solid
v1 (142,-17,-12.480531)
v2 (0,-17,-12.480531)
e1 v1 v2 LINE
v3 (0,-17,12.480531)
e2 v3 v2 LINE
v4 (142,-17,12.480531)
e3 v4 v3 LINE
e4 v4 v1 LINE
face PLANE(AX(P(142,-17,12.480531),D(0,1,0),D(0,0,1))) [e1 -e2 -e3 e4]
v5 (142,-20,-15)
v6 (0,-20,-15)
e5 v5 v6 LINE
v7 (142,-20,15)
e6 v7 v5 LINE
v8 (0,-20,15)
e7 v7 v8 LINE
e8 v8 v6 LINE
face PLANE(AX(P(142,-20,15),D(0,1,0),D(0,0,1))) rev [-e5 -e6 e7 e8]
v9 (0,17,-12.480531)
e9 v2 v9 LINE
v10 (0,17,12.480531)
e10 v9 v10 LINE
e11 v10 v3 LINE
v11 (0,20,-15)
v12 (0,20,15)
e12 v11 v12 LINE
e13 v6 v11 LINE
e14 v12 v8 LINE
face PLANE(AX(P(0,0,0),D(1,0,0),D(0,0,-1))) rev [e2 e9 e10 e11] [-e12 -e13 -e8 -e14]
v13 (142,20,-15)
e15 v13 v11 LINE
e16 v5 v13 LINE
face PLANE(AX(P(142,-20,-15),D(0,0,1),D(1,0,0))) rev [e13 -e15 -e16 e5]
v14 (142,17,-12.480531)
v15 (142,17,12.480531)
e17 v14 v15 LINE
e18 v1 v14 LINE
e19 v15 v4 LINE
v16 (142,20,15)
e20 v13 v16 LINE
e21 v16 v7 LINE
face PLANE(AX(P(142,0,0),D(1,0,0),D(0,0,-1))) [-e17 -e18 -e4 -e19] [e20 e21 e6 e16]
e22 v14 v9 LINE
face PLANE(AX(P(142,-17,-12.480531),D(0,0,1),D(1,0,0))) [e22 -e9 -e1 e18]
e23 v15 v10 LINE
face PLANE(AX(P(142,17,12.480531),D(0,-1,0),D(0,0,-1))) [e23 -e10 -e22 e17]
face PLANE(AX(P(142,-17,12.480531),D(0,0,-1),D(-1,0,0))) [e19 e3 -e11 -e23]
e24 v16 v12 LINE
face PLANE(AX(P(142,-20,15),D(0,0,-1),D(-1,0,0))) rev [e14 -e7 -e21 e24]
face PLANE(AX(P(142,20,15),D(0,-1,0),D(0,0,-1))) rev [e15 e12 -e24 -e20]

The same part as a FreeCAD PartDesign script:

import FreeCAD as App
import Part
import Sketcher

V = App.Vector


def add_polygon(sketch, points):
    """Adds a closed chain of lines whose ends are joined by coincident constraints."""
    first, n = sketch.GeometryCount, len(points)
    for a, b in zip(points, points[1:] + points[:1]):
        sketch.addGeometry(Part.LineSegment(App.Vector(*a, 0), App.Vector(*b, 0)), False)
    for i in range(n):
        sketch.addConstraint(Sketcher.Constraint("Coincident", first + i, 2, first + (i + 1) % n, 1))

doc = App.newDocument("Part")
body = doc.addObject("PartDesign::Body", "Body")

# Sketch on YZ plane
sketch1 = body.newObject("Sketcher::SketchObject", "Sketch")
sketch1.AttachmentSupport = (doc.getObject("YZ_Plane"), [""])
sketch1.MapMode = "FlatFace"
add_polygon(sketch1, [(20, 15), (-20, 15), (-20, -15), (20, -15)])  # lines 0-3
add_polygon(sketch1, [(-17, -12), (-17, 12), (17, 12), (17, -12)])  # lines 4-7
sketch1.addConstraint([
    Sketcher.Constraint("Horizontal", 0),
    Sketcher.Constraint("Vertical", 1),
    Sketcher.Constraint("Horizontal", 2),
    Sketcher.Constraint("Vertical", 3),
    Sketcher.Constraint("Vertical", 4),
    Sketcher.Constraint("Horizontal", 5),
    Sketcher.Constraint("Vertical", 6),
    Sketcher.Constraint("Horizontal", 7),
    Sketcher.Constraint("Symmetric", 0, 2, 2, 2, -1, 1),
    Sketcher.Constraint("Symmetric", 4, 2, 6, 2, -1, 1),
    Sketcher.Constraint("DistanceX", 0, 2, 0, 1, 40.0),
    Sketcher.Constraint("DistanceX", 5, 1, 5, 2, 34.0),
    Sketcher.Constraint("DistanceY", 1, 2, 1, 1, 30.0),
    Sketcher.Constraint("DistanceY", 4, 1, 4, 2, 24.961063),
])
pad1 = body.newObject("PartDesign::Pad", "Pad")
pad1.Profile = sketch1
pad1.Length = 142

doc.recompute()
